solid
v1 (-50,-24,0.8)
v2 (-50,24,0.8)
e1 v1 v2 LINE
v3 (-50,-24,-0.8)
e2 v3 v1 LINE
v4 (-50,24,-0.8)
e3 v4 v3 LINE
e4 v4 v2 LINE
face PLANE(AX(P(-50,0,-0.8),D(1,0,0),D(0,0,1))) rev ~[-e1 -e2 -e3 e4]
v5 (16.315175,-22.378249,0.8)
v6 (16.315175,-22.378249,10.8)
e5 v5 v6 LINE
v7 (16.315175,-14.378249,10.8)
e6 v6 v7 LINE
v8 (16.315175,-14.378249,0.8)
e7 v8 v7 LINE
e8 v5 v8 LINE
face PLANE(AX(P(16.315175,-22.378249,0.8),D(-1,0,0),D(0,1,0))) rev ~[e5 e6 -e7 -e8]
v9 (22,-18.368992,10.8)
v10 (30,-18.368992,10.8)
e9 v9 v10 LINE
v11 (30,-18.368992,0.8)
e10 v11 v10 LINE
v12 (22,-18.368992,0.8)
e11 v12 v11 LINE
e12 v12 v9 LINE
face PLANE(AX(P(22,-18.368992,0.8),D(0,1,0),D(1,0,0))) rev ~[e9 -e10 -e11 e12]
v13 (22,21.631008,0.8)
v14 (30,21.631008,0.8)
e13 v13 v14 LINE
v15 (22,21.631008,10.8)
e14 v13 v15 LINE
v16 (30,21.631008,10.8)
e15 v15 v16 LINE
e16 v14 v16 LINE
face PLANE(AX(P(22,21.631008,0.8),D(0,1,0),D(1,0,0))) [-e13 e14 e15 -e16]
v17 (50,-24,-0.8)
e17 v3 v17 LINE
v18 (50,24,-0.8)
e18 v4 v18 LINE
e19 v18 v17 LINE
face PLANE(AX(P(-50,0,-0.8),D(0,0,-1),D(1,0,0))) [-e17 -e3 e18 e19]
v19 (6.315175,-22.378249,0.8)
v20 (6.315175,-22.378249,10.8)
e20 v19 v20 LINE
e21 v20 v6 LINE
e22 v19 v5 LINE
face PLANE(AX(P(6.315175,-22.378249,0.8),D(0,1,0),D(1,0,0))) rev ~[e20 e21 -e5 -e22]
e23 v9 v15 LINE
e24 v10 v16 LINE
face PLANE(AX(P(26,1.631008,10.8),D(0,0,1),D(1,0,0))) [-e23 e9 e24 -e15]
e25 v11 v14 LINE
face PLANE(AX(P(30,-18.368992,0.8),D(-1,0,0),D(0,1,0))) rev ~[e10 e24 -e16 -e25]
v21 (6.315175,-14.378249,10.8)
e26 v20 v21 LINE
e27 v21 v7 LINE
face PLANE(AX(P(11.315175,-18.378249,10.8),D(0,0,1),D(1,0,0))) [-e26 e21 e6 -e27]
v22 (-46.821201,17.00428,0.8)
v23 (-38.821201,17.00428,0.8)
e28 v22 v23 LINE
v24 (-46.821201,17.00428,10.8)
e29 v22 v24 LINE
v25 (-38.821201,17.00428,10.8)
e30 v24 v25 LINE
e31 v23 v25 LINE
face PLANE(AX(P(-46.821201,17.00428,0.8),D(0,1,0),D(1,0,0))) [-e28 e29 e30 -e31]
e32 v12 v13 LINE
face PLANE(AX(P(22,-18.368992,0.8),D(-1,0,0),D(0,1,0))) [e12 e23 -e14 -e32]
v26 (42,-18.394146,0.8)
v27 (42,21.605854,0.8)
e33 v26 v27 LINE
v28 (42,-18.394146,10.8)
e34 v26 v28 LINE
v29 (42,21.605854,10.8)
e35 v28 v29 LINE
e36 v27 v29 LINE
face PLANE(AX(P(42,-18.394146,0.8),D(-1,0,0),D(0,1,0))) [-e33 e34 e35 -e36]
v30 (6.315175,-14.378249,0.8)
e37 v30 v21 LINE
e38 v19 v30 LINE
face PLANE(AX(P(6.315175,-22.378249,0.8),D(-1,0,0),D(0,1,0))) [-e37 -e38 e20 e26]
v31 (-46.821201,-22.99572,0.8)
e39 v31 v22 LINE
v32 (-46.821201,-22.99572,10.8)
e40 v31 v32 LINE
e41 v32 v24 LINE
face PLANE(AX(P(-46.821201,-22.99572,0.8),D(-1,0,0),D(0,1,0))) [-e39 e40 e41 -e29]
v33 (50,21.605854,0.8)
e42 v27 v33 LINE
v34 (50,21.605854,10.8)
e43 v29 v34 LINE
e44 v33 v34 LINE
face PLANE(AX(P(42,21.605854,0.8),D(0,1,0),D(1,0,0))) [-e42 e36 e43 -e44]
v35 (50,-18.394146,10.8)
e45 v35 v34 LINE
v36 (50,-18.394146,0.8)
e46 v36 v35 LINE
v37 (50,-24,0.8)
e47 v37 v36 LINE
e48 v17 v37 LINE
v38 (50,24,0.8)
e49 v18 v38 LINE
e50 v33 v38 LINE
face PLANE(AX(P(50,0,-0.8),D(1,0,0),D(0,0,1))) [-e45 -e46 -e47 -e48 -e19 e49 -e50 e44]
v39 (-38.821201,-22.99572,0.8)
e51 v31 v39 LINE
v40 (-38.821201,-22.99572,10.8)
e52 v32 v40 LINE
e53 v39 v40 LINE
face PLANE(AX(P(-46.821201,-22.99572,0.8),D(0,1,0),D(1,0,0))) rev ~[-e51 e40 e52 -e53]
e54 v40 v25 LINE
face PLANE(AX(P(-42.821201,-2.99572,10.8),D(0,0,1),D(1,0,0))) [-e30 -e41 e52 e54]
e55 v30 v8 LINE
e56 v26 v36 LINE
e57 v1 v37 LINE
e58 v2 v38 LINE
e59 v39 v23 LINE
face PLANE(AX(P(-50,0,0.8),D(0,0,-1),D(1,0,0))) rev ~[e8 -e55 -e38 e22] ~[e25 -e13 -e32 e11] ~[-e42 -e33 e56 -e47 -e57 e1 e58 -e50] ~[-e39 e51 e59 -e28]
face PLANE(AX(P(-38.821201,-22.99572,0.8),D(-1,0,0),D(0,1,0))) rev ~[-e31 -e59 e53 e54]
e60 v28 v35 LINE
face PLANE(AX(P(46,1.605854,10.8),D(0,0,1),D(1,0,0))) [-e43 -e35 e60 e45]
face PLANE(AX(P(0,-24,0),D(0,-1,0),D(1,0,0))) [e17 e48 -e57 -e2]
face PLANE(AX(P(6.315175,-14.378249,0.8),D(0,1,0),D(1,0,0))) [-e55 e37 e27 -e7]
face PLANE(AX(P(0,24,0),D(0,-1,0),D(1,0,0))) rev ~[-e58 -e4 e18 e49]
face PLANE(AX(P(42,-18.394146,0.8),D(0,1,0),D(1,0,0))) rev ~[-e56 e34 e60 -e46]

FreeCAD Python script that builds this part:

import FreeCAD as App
import Part
import Sketcher

doc = App.newDocument("Part")
body = doc.addObject("PartDesign::Body", "Body")

sketch1 = body.newObject("Sketcher::SketchObject", "Sketch")
sketch1.AttachmentSupport = (doc.getObject("XZ_Plane"), [""])
sketch1.MapMode = "FlatFace"
sketch1.addGeometry([
    Part.LineSegment(App.Vector(-50, 0.8, 0), App.Vector(-50, -0.8, 0)),
    Part.LineSegment(App.Vector(-50, -0.8, 0), App.Vector(50, -0.8, 0)),
    Part.LineSegment(App.Vector(50, -0.8, 0), App.Vector(50, 0.8, 0)),
    Part.LineSegment(App.Vector(50, 0.8, 0), App.Vector(-50, 0.8, 0)),
], False)
sketch1.addConstraint([
    Sketcher.Constraint("Coincident", 0, 2, 1, 1),
    Sketcher.Constraint("Coincident", 1, 2, 2, 1),
    Sketcher.Constraint("Coincident", 2, 2, 3, 1),
    Sketcher.Constraint("Coincident", 3, 2, 0, 1),
    Sketcher.Constraint("Vertical", 0),
    Sketcher.Constraint("Horizontal", 1),
    Sketcher.Constraint("Vertical", 2),
    Sketcher.Constraint("Horizontal", 3),
    Sketcher.Constraint("Symmetric", 0, 2, 2, 2, -1, 1),
    Sketcher.Constraint("DistanceX", 1, 1, 1, 2, 100.0),
    Sketcher.Constraint("DistanceY", 0, 2, 0, 1, 1.6),
])
pad1 = body.newObject("PartDesign::Pad", "Pad")
pad1.Profile = sketch1
pad1.Length = 48
pad1.Midplane = True

sketch2 = body.newObject("Sketcher::SketchObject", "Sketch001")
sketch2.AttachmentSupport = (doc.getObject("XY_Plane"), [""])
sketch2.MapMode = "FlatFace"
sketch2.AttachmentOffset = App.Placement(App.Vector(0, 0, 0.8), App.Rotation())
sketch2.addGeometry([
    Part.LineSegment(App.Vector(-47, 17, 0), App.Vector(-47, -23, 0)),
    Part.LineSegment(App.Vector(-47, -23, 0), App.Vector(-39, -23, 0)),
    Part.LineSegment(App.Vector(-39, -23, 0), App.Vector(-39, 17, 0)),
    Part.LineSegment(App.Vector(-39, 17, 0), App.Vector(-47, 17, 0)),
], False)
sketch2.addConstraint([
    Sketcher.Constraint("Coincident", 0, 2, 1, 1),
    Sketcher.Constraint("Coincident", 1, 2, 2, 1),
    Sketcher.Constraint("Coincident", 2, 2, 3, 1),
    Sketcher.Constraint("Coincident", 3, 2, 0, 1),
    Sketcher.Constraint("Vertical", 0),
    Sketcher.Constraint("Horizontal", 1),
    Sketcher.Constraint("Vertical", 2),
    Sketcher.Constraint("Horizontal", 3),
    Sketcher.Constraint("DistanceX", 1, 1, 1, 2, 8.0),
    Sketcher.Constraint("DistanceY", 0, 2, 0, 1, 40.0),
    Sketcher.Constraint("DistanceX", 0, 2, -1, 1, 46.821201),
    Sketcher.Constraint("DistanceY", 0, 2, -1, 1, 22.99572),
])
pad2 = body.newObject("PartDesign::Pad", "Pad001")
pad2.Profile = sketch2
pad2.Length = 10

sketch3 = body.newObject("Sketcher::SketchObject", "Sketch002")
sketch3.AttachmentSupport = (doc.getObject("XY_Plane"), [""])
sketch3.MapMode = "FlatFace"
sketch3.AttachmentOffset = App.Placement(App.Vector(0, 0, 0.8), App.Rotation())
sketch3.addGeometry([
    Part.LineSegment(App.Vector(42, 22, 0), App.Vector(42, -18, 0)),
    Part.LineSegment(App.Vector(42, -18, 0), App.Vector(50, -18, 0)),
    Part.LineSegment(App.Vector(50, -18, 0), App.Vector(50, 22, 0)),
    Part.LineSegment(App.Vector(50, 22, 0), App.Vector(42, 22, 0)),
], False)
sketch3.addConstraint([
    Sketcher.Constraint("Coincident", 0, 2, 1, 1),
    Sketcher.Constraint("Coincident", 1, 2, 2, 1),
    Sketcher.Constraint("Coincident", 2, 2, 3, 1),
    Sketcher.Constraint("Coincident", 3, 2, 0, 1),
    Sketcher.Constraint("Vertical", 0),
    Sketcher.Constraint("Horizontal", 1),
    Sketcher.Constraint("Vertical", 2),
    Sketcher.Constraint("Horizontal", 3),
    Sketcher.Constraint("DistanceX", 1, 1, 1, 2, 8.0),
    Sketcher.Constraint("DistanceY", 0, 2, 0, 1, 40.0),
    Sketcher.Constraint("DistanceX", -1, 1, 0, 2, 42.0),
    Sketcher.Constraint("DistanceY", 0, 2, -1, 1, 18.394146),
])
pad3 = body.newObject("PartDesign::Pad", "Pad002")
pad3.Profile = sketch3
pad3.Length = 10

sketch4 = body.newObject("Sketcher::SketchObject", "Sketch003")
sketch4.AttachmentSupport = (doc.getObject("XY_Plane"), [""])
sketch4.MapMode = "FlatFace"
sketch4.AttachmentOffset = App.Placement(App.Vector(0, 0, 0.8), App.Rotation())
sketch4.addGeometry([
    Part.LineSegment(App.Vector(22, 22, 0), App.Vector(22, -18, 0)),
    Part.LineSegment(App.Vector(22, -18, 0), App.Vector(30, -18, 0)),
    Part.LineSegment(App.Vector(30, -18, 0), App.Vector(30, 22, 0)),
    Part.LineSegment(App.Vector(30, 22, 0), App.Vector(22, 22, 0)),
], False)
sketch4.addConstraint([
    Sketcher.Constraint("Coincident", 0, 2, 1, 1),
    Sketcher.Constraint("Coincident", 1, 2, 2, 1),
    Sketcher.Constraint("Coincident", 2, 2, 3, 1),
    Sketcher.Constraint("Coincident", 3, 2, 0, 1),
    Sketcher.Constraint("Vertical", 0),
    Sketcher.Constraint("Horizontal", 1),
    Sketcher.Constraint("Vertical", 2),
    Sketcher.Constraint("Horizontal", 3),
    Sketcher.Constraint("DistanceX", 1, 1, 1, 2, 8.0),
    Sketcher.Constraint("DistanceY", 0, 2, 0, 1, 40.0),
    Sketcher.Constraint("DistanceX", -1, 1, 0, 2, 22.0),
    Sketcher.Constraint("DistanceY", 0, 2, -1, 1, 18.368992),
])
pad4 = body.newObject("PartDesign::Pad", "Pad003")
pad4.Profile = sketch4
pad4.Length = 10

sketch5 = body.newObject("Sketcher::SketchObject", "Sketch004")
sketch5.AttachmentSupport = (doc.getObject("XY_Plane"), [""])
sketch5.MapMode = "FlatFace"
sketch5.AttachmentOffset = App.Placement(App.Vector(0, 0, 0.8), App.Rotation())
sketch5.addGeometry([
    Part.LineSegment(App.Vector(6, -14, 0), App.Vector(6, -22, 0)),
    Part.LineSegment(App.Vector(6, -22, 0), App.Vector(16, -22, 0)),
    Part.LineSegment(App.Vector(16, -22, 0), App.Vector(16, -14, 0)),
    Part.LineSegment(App.Vector(16, -14, 0), App.Vector(6, -14, 0)),
], False)
sketch5.addConstraint([
    Sketcher.Constraint("Coincident", 0, 2, 1, 1),
    Sketcher.Constraint("Coincident", 1, 2, 2, 1),
    Sketcher.Constraint("Coincident", 2, 2, 3, 1),
    Sketcher.Constraint("Coincident", 3, 2, 0, 1),
    Sketcher.Constraint("Vertical", 0),
    Sketcher.Constraint("Horizontal", 1),
    Sketcher.Constraint("Vertical", 2),
    Sketcher.Constraint("Horizontal", 3),
    Sketcher.Constraint("DistanceX", 1, 1, 1, 2, 10.0),
    Sketcher.Constraint("DistanceY", 0, 2, 0, 1, 8.0),
    Sketcher.Constraint("DistanceY", 0, 2, -1, 1, 22.378249),
    Sketcher.Constraint("DistanceX", -1, 1, 0, 2, 6.315175),
])
pad5 = body.newObject("PartDesign::Pad", "Pad004")
pad5.Profile = sketch5
pad5.Length = 10

doc.recompute()
